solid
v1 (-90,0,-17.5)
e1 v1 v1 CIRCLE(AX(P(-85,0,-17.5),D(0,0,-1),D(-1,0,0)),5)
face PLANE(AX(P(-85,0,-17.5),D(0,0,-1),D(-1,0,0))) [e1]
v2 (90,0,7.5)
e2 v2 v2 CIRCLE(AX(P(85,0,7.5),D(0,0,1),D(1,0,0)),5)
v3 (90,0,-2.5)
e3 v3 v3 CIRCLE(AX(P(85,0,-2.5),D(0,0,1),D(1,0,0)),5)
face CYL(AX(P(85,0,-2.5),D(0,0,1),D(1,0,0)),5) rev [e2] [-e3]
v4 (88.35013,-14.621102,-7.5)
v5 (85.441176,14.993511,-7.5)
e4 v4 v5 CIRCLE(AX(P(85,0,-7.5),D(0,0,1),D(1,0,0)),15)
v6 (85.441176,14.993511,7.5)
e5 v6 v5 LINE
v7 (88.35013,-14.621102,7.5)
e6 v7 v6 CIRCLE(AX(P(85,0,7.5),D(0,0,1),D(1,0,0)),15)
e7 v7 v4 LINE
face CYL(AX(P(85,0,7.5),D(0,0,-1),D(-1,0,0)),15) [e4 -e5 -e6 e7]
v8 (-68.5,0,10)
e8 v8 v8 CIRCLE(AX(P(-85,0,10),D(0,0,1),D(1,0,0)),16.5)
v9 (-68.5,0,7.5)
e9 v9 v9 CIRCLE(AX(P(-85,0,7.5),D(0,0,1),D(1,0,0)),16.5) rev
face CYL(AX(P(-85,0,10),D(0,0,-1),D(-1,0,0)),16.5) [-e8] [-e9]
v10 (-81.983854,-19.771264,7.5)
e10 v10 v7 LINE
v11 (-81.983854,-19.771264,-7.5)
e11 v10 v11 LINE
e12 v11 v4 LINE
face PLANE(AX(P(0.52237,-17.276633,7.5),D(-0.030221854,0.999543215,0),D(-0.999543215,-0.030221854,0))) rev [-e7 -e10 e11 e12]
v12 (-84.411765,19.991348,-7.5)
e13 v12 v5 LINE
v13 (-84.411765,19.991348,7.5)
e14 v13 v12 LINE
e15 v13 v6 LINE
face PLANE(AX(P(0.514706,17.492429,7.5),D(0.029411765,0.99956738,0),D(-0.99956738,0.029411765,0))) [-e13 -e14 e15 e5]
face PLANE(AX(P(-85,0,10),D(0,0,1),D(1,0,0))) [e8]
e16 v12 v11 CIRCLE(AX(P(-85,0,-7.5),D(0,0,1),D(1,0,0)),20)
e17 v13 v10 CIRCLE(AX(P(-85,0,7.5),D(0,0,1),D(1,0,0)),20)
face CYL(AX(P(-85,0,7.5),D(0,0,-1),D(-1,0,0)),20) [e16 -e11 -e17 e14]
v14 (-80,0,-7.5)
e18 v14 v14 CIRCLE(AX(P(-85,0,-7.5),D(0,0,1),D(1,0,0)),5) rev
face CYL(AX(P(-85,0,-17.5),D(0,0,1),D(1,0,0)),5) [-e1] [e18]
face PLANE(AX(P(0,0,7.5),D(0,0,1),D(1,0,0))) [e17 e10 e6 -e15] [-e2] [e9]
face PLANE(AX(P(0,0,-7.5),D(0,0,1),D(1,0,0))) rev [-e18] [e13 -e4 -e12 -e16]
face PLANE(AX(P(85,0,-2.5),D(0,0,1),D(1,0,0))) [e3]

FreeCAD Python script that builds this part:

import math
import FreeCAD as App
import Part
import Sketcher

V = App.Vector

doc = App.newDocument("Part")
body = doc.addObject("PartDesign::Body", "Body")

# Sketch on XY plane
sketch1 = body.newObject("Sketcher::SketchObject", "Sketch")
sketch1.AttachmentSupport = (doc.getObject("XY_Plane"), [""])
sketch1.MapMode = "FlatFace"
sketch1.addGeometry([
    Part.LineSegment(V(-81.983854, -19.771264, 0), V(88.35013, -14.621102, 0)),
    Part.ArcOfCircle(Part.Circle(V(85, 0, 0), V(0, 0, 1), 15), math.radians(-77.094601), math.radians(88.314587)),
    Part.LineSegment(V(85.441176, 14.993511, 0), V(-84.411765, 19.991348, 0)),
    Part.ArcOfCircle(Part.Circle(V(-85, 0, 0), V(0, 0, 1), 20), math.radians(88.314587), math.radians(278.673713)),
], False)
sketch1.addConstraint([
    Sketcher.Constraint("Coincident", 0, 2, 1, 1),
    Sketcher.Constraint("Tangent", 1, 2, 2, 1),
    Sketcher.Constraint("Tangent", 2, 2, 3, 1),
    Sketcher.Constraint("Coincident", 3, 2, 0, 1),
    Sketcher.Constraint("Symmetric", 1, 3, 3, 3, -1, 1),
    Sketcher.Constraint("PointOnObject", 1, 3, -1),
    Sketcher.Constraint("Radius", 1, 15.0),
    Sketcher.Constraint("Radius", 3, 20.0),
    Sketcher.Constraint("DistanceX", -1, 1, 1, 3, 85.0),
    Sketcher.Constraint("DistanceX", -1, 1, 0, 2, 88.35013),
    Sketcher.Constraint("DistanceX", 2, 2, 3, 2, 2.42791),
])
pad1 = body.newObject("PartDesign::Pad", "Pad")
pad1.Profile = sketch1
pad1.Length = 15
pad1.Midplane = True

# Sketch on XY plane
sketch2 = body.newObject("Sketcher::SketchObject", "Sketch001")
sketch2.AttachmentSupport = (doc.getObject("XY_Plane"), [""])
sketch2.MapMode = "FlatFace"
sketch2.AttachmentOffset = App.Placement(V(0, 0, 7.5), App.Rotation())
sketch2.addGeometry(Part.Circle(V(-85, 0, 0), V(0, 0, 1), 16.5), False)
sketch2.addConstraint([
    Sketcher.Constraint("PointOnObject", 0, 3, -1),
    Sketcher.Constraint("Diameter", 0, 33.0),
    Sketcher.Constraint("DistanceX", 0, 3, -1, 1, 85.0),
])
pad2 = body.newObject("PartDesign::Pad", "Pad001")
pad2.Profile = sketch2
pad2.Length = 5
pad2.Midplane = True

# Sketch on XY plane
sketch3 = body.newObject("Sketcher::SketchObject", "Sketch002")
sketch3.AttachmentSupport = (doc.getObject("XY_Plane"), [""])
sketch3.MapMode = "FlatFace"
sketch3.AttachmentOffset = App.Placement(V(0, 0, 7.5), App.Rotation())
sketch3.addGeometry(Part.Circle(V(85, 0, 0), V(0, 0, 1), 5), False)
sketch3.addConstraint([
    Sketcher.Constraint("PointOnObject", 0, 3, -1),
    Sketcher.Constraint("Diameter", 0, 10.0),
    Sketcher.Constraint("DistanceX", -1, 1, 0, 3, 85.0),
])
pocket1 = body.newObject("PartDesign::Pocket", "Pocket")
pocket1.Profile = sketch3
pocket1.Length = 10

# Sketch on XY plane
sketch4 = body.newObject("Sketcher::SketchObject", "Sketch003")
sketch4.AttachmentSupport = (doc.getObject("XY_Plane"), [""])
sketch4.MapMode = "FlatFace"
sketch4.AttachmentOffset = App.Placement(V(0, 0, -7.5), App.Rotation())
sketch4.addGeometry(Part.Circle(V(-85, 0, 0), V(0, 0, 1), 5), False)
sketch4.addConstraint([
    Sketcher.Constraint("PointOnObject", 0, 3, -1),
    Sketcher.Constraint("Diameter", 0, 10.0),
    Sketcher.Constraint("DistanceX", 0, 3, -1, 1, 85.0),
])
pad3 = body.newObject("PartDesign::Pad", "Pad002")
pad3.Profile = sketch4
pad3.Length = 10
pad3.Reversed = True

doc.recompute()
